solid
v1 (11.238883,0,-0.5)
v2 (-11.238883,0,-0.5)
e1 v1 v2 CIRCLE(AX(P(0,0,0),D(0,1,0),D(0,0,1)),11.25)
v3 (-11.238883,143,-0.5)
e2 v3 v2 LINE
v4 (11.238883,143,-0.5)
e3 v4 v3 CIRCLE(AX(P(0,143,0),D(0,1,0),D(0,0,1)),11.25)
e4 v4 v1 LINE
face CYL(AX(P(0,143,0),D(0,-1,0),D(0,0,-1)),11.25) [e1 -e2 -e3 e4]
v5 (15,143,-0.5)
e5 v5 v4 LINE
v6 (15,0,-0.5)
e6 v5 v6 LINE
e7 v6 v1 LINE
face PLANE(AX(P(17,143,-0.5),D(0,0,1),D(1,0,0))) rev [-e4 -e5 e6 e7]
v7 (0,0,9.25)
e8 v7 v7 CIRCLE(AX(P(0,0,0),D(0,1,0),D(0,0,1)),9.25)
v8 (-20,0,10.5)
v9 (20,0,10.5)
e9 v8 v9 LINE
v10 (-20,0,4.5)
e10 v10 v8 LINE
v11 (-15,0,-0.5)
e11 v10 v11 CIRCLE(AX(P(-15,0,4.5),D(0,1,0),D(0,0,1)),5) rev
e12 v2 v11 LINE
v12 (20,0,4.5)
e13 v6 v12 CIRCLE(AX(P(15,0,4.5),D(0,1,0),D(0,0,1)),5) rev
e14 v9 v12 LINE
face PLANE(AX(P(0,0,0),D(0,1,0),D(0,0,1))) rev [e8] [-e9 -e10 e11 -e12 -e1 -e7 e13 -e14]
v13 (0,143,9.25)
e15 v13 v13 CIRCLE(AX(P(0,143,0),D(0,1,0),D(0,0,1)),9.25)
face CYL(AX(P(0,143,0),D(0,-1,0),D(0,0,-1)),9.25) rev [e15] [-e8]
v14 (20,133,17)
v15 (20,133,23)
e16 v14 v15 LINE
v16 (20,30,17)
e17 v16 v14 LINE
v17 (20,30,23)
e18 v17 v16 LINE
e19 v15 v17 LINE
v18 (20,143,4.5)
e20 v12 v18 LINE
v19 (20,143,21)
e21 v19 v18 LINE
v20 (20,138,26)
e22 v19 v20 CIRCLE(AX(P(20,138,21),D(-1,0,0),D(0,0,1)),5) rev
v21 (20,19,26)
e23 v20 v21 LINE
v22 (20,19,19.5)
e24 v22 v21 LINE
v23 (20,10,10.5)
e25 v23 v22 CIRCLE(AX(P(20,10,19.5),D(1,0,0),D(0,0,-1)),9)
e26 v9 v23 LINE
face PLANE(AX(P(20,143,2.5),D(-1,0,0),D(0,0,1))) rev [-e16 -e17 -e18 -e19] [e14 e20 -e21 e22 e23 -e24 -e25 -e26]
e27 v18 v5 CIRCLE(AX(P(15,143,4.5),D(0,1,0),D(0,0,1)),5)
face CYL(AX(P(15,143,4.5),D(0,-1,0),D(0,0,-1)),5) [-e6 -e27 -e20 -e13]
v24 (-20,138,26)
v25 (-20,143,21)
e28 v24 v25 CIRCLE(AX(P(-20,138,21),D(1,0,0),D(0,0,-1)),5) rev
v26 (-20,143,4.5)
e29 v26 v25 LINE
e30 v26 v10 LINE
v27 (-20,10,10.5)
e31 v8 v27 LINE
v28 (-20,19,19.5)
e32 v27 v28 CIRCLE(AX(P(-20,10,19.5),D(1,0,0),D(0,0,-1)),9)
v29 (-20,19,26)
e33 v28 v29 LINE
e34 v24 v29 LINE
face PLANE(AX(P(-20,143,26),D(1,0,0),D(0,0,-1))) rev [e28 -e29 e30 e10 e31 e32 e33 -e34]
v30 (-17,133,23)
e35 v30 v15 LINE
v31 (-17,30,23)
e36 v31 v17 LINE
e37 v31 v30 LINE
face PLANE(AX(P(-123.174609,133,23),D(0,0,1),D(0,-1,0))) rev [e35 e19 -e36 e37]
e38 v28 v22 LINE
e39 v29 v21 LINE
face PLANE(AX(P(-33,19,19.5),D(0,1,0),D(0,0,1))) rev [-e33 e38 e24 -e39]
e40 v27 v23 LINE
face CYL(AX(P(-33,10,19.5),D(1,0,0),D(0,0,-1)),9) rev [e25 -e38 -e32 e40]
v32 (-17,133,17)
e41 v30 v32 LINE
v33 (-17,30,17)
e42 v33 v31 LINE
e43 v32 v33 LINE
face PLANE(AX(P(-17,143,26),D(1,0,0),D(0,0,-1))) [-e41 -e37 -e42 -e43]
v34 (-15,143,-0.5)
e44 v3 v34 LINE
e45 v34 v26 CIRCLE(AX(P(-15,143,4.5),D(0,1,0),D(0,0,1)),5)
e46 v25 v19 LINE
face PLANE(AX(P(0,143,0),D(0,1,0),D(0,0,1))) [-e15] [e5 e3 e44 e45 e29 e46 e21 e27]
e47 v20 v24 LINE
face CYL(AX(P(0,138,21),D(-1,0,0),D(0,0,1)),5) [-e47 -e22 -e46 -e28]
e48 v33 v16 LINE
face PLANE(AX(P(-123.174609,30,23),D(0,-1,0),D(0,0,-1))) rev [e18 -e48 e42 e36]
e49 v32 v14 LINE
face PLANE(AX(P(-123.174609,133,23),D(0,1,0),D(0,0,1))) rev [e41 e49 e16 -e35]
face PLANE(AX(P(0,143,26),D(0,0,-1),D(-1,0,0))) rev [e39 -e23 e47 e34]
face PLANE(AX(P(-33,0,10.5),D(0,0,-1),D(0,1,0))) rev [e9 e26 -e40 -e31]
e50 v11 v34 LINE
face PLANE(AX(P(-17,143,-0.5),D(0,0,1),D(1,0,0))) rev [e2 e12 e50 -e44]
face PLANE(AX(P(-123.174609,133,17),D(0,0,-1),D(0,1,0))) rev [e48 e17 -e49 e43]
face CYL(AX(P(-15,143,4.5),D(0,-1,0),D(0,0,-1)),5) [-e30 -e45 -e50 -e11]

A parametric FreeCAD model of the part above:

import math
import FreeCAD as App
import Part
import Sketcher
Q = App.Units.Quantity


def edges_at(feature, points):
    """Names of the edges that pass closest to the given points."""
    edges = feature.Shape.Edges
    near = lambda p: min(range(len(edges)), key=lambda i: edges[i].distToShape(Part.Vertex(*p))[0])
    return sorted({f"Edge{near(p) + 1}" for p in points})


def add_polygon(sketch, points):
    """Adds a closed chain of lines whose ends are joined by coincident constraints."""
    first, n = sketch.GeometryCount, len(points)
    for a, b in zip(points, points[1:] + points[:1]):
        sketch.addGeometry(Part.LineSegment(App.Vector(*a, 0), App.Vector(*b, 0)), False)
    for i in range(n):
        sketch.addConstraint(Sketcher.Constraint("Coincident", first + i, 2, first + (i + 1) % n, 1))

doc = App.newDocument("Part")
body = doc.addObject("PartDesign::Body", "Body")

# Sketch on XZ plane
sketch1 = body.newObject("Sketcher::SketchObject", "Sketch")
sketch1.AttachmentSupport = (doc.getObject("XZ_Plane"), [""])
sketch1.MapMode = "FlatFace"
sketch1.addGeometry([
    Part.LineSegment(App.Vector(-20, 0, 0), App.Vector(-20, 26, 0)),  # 0
    Part.LineSegment(App.Vector(-20, 26, 0), App.Vector(20, 26, 0)),  # 1
    Part.LineSegment(App.Vector(20, 26, 0), App.Vector(20, 0, 0)),  # 2
    Part.LineSegment(App.Vector(20, 0, 0), App.Vector(11, 0, 0)),  # 3
    Part.ArcOfCircle(Part.Circle(App.Vector(0, 0, 0), App.Vector(0, 0, 1), 11), math.radians(-177), math.radians(-3)),  # 4
    Part.LineSegment(App.Vector(-11, 0, 0), App.Vector(-20, 0, 0)),  # 5
    Part.Circle(App.Vector(0, 0, 0), App.Vector(0, 0, 1), 9),  # 6
], False)
sketch1.addConstraint([
    Sketcher.Constraint("Coincident", 0, 2, 1, 1),
    Sketcher.Constraint("Coincident", 1, 2, 2, 1),
    Sketcher.Constraint("Coincident", 2, 2, 3, 1),
    Sketcher.Constraint("Coincident", 3, 2, 4, 2),
    Sketcher.Constraint("Coincident", 4, 1, 5, 1),
    Sketcher.Constraint("Coincident", 5, 2, 0, 1),
    Sketcher.Constraint("Vertical", 0),
    Sketcher.Constraint("Horizontal", 1),
    Sketcher.Constraint("Vertical", 2),
    Sketcher.Constraint("Horizontal", 3),
    Sketcher.Constraint("Horizontal", 5),
    Sketcher.Constraint("Coincident", 4, 3, -1, 1),
    Sketcher.Constraint("Coincident", 6, 3, -1, 1),
    Sketcher.Constraint("Symmetric", 2, 2, 5, 2, -2),
    Sketcher.Constraint("Diameter", 6, Q("18.5 mm")),
    Sketcher.Constraint("DistanceX", 1, 1, 1, 2, Q("40 mm")),
    Sketcher.Constraint("Radius", 4, Q("11.25 mm")),
    Sketcher.Constraint("DistanceY", 0, 1, 0, 2, Q("26.5 mm")),
    Sketcher.Constraint("DistanceY", -1, 1, 0, 2, Q("26 mm")),
])
pad1 = body.newObject("PartDesign::Pad", "Pad")
pad1.Profile = sketch1
pad1.Length = 143
pad1.Reversed = True
doc.recompute()

fillet = body.newObject("PartDesign::Fillet", "Fillet")
fillet.Base = (pad1, edges_at(pad1, [(-20, 71.5, -0.5), (20, 71.5, -0.5)]))
fillet.Radius = 5

# Sketch on YZ plane
sketch2 = body.newObject("Sketcher::SketchObject", "Sketch001")
sketch2.AttachmentSupport = (doc.getObject("YZ_Plane"), [""])
sketch2.MapMode = "FlatFace"
sketch2.AttachmentOffset = App.Placement(App.Vector(0, 0, 20), App.Rotation())
add_polygon(sketch2, [(133, 23), (30, 23), (30, 17), (133, 17)])  # lines 0-3
sketch2.addConstraint([
    Sketcher.Constraint("Horizontal", 0),
    Sketcher.Constraint("Vertical", 1),
    Sketcher.Constraint("Horizontal", 2),
    Sketcher.Constraint("Vertical", 3),
    Sketcher.Constraint("DistanceX", 0, 2, 0, 1, Q("103 mm")),
    Sketcher.Constraint("DistanceY", 1, 2, 1, 1, Q("6 mm")),
    Sketcher.Constraint("DistanceX", -1, 1, 0, 2, Q("30 mm")),
    Sketcher.Constraint("DistanceY", -1, 1, 0, 2, Q("23 mm")),
])
pocket1 = body.newObject("PartDesign::Pocket", "Pocket")
pocket1.Profile = sketch2
pocket1.Length = 37
doc.recompute()

fillet2 = body.newObject("PartDesign::Fillet", "Fillet001")
fillet2.Base = (pocket1, edges_at(pocket1, [(0, 0, 26), (0, 143, 26)]))
fillet2.Radius = 5

# Sketch on YZ plane
sketch3 = body.newObject("Sketcher::SketchObject", "Sketch002")
sketch3.AttachmentSupport = (doc.getObject("YZ_Plane"), [""])
sketch3.MapMode = "FlatFace"
sketch3.AttachmentOffset = App.Placement(App.Vector(0, 0, 20), App.Rotation())
sketch3.addGeometry([
    Part.LineSegment(App.Vector(0, 10, 0), App.Vector(10, 10, 0)),  # 0
    Part.ArcOfCircle(Part.Circle(App.Vector(10, 19, 0), App.Vector(0, 0, 1), 9), math.radians(-90), math.radians(0)),  # 1
    Part.LineSegment(App.Vector(19, 20, 0), App.Vector(19, 26, 0)),  # 2
    Part.LineSegment(App.Vector(19, 26, 0), App.Vector(5, 26, 0)),  # 3
    Part.ArcOfCircle(Part.Circle(App.Vector(5, 21, 0), App.Vector(0, 0, 1), 5), math.radians(90), math.radians(180)),  # 4
    Part.LineSegment(App.Vector(0, 21, 0), App.Vector(0, 10, 0)),  # 5
], False)
sketch3.addConstraint([
    Sketcher.Constraint("Tangent", 0, 2, 1, 1),
    Sketcher.Constraint("Tangent", 1, 2, 2, 1),
    Sketcher.Constraint("Coincident", 2, 2, 3, 1),
    Sketcher.Constraint("Tangent", 3, 2, 4, 1),
    Sketcher.Constraint("Tangent", 4, 2, 5, 1),
    Sketcher.Constraint("Coincident", 5, 2, 0, 1),
    Sketcher.Constraint("Horizontal", 0),
    Sketcher.Constraint("Vertical", 2),
    Sketcher.Constraint("Horizontal", 3),
    Sketcher.Constraint("Vertical", 5),
    Sketcher.Constraint("PointOnObject", 4, 2, -2),
    Sketcher.Constraint("Radius", 1, Q("9 mm")),
    Sketcher.Constraint("Radius", 4, Q("5 mm")),
    Sketcher.Constraint("DistanceX", 0, 1, 0, 2, Q("10 mm")),
    Sketcher.Constraint("DistanceY", 2, 1, 2, 2, Q("6.5 mm")),
    Sketcher.Constraint("DistanceY", -1, 1, 4, 3, Q("21 mm")),
])
pocket2 = body.newObject("PartDesign::Pocket", "Pocket001")
pocket2.Profile = sketch3
pocket2.Length = 53

doc.recompute()
